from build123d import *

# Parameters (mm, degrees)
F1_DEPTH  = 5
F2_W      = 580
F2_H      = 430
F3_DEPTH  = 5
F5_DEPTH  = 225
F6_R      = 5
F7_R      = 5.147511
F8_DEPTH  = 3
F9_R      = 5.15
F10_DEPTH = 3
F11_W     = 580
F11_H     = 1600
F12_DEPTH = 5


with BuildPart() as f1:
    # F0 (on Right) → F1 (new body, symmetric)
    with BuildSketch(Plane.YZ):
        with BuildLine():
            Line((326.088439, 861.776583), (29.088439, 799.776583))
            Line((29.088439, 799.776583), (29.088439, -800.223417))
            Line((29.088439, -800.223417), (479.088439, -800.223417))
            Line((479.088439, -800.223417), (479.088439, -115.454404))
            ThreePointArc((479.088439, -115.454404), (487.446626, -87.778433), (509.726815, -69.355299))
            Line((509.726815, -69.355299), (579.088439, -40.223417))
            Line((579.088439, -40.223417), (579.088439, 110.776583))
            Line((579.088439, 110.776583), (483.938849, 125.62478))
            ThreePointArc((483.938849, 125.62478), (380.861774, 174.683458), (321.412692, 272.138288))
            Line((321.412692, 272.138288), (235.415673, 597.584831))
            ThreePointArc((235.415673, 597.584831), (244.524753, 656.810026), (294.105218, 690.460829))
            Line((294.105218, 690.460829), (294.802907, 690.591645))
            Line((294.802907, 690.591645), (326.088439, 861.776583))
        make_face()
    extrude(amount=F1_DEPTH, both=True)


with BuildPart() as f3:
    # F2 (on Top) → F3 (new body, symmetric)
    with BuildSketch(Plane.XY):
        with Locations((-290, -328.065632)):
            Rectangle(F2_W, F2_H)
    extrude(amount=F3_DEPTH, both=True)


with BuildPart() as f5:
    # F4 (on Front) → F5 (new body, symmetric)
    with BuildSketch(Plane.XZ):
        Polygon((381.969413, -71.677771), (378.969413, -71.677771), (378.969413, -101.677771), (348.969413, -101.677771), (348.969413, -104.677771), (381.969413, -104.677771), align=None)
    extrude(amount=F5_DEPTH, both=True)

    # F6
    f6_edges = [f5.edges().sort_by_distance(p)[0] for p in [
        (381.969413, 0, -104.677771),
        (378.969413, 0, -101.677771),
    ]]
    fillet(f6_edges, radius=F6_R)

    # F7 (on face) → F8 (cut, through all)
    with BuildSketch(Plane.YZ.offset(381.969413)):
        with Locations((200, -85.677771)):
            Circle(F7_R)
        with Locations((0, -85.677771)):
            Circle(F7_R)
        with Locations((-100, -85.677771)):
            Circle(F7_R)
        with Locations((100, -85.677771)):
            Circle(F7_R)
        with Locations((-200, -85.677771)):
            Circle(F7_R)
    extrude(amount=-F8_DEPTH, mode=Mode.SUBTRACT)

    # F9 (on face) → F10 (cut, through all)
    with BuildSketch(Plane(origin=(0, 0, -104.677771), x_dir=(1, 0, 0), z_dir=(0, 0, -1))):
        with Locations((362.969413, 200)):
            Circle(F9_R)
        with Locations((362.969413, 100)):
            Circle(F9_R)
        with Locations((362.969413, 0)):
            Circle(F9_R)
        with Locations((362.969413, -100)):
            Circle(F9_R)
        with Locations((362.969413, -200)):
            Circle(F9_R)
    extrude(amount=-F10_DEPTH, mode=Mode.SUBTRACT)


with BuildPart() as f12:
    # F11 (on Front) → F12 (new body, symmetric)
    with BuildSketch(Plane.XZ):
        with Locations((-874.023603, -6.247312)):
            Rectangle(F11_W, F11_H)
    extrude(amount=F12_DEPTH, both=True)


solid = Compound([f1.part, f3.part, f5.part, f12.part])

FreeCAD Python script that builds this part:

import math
import FreeCAD as App
import Part
import Sketcher

V = App.Vector


def edges_at(feature, points):
    """Names of the edges that pass closest to the given points."""
    edges = feature.Shape.Edges
    near = lambda p: min(range(len(edges)), key=lambda i: edges[i].distToShape(Part.Vertex(*p))[0])
    return sorted({f"Edge{near(p) + 1}" for p in points})

doc = App.newDocument("Part")
body = doc.addObject("PartDesign::Body", "Body")

# Sketch on YZ plane
sketch1 = body.newObject("Sketcher::SketchObject", "Sketch")
sketch1.AttachmentSupport = (doc.getObject("YZ_Plane"), [""])
sketch1.MapMode = "FlatFace"
sketch1.addGeometry(Part.LineSegment(V(326.1, 861.8, 0), V(29.1, 799.8, 0)), False)
sketch1.addGeometry(Part.LineSegment(V(29.1, 799.8, 0), V(29.1, -800.2, 0)), False)
sketch1.addGeometry(Part.LineSegment(V(29.1, -800.2, 0), V(479.1, -800.2, 0)), False)
sketch1.addGeometry(Part.LineSegment(V(479.1, -800.2, 0), V(479.1, -115.5, 0)), False)
sketch1.addGeometry(Part.ArcOfCircle(Part.Circle(V(529.1, -115.5, 0), V(0, 0, 1), 50), math.radians(113), math.radians(180)), False)
sketch1.addGeometry(Part.LineSegment(V(509.7, -69.4, 0), V(579.1, -40.2, 0)), False)
sketch1.addGeometry(Part.LineSegment(V(579.1, -40.2, 0), V(579.1, 110.8, 0)), False)
sketch1.addGeometry(Part.LineSegment(V(579.1, 110.8, 0), V(483.9, 125.6, 0)), False)
sketch1.addGeometry(Part.ArcOfCircle(Part.Circle(V(514.8, 323.2, 0), V(0, 0, 1), 200), math.radians(-165), math.radians(-99)), False)
sketch1.addGeometry(Part.LineSegment(V(321.4, 272.1, 0), V(235.4, 597.6, 0)), False)
sketch1.addGeometry(Part.ArcOfCircle(Part.Circle(V(307.9, 616.7, 0), V(0, 0, 1), 75), math.radians(101), math.radians(195)), False)
sketch1.addGeometry(Part.LineSegment(V(294.1, 690.5, 0), V(294.8, 690.6, 0)), False)
sketch1.addGeometry(Part.LineSegment(V(294.8, 690.6, 0), V(326.1, 861.8, 0)), False)
sketch1.addConstraint(Sketcher.Constraint("Coincident", 0, 2, 1, 1))
sketch1.addConstraint(Sketcher.Constraint("Coincident", 1, 2, 2, 1))
sketch1.addConstraint(Sketcher.Constraint("Coincident", 2, 2, 3, 1))
sketch1.addConstraint(Sketcher.Constraint("Tangent", 3, 2, 4, 2))
sketch1.addConstraint(Sketcher.Constraint("Tangent", 4, 1, 5, 1))
sketch1.addConstraint(Sketcher.Constraint("Coincident", 5, 2, 6, 1))
sketch1.addConstraint(Sketcher.Constraint("Coincident", 6, 2, 7, 1))
sketch1.addConstraint(Sketcher.Constraint("Tangent", 7, 2, 8, 2))
sketch1.addConstraint(Sketcher.Constraint("Tangent", 8, 1, 9, 1))
sketch1.addConstraint(Sketcher.Constraint("Tangent", 9, 2, 10, 2))
sketch1.addConstraint(Sketcher.Constraint("Tangent", 10, 1, 11, 1))
sketch1.addConstraint(Sketcher.Constraint("Coincident", 11, 2, 12, 1))
sketch1.addConstraint(Sketcher.Constraint("Coincident", 12, 2, 0, 1))
sketch1.addConstraint(Sketcher.Constraint("Vertical", 1))
sketch1.addConstraint(Sketcher.Constraint("Horizontal", 2))
sketch1.addConstraint(Sketcher.Constraint("Vertical", 3))
sketch1.addConstraint(Sketcher.Constraint("Vertical", 6))
sketch1.addConstraint(Sketcher.Constraint("Radius", 4, 50.000001))
sketch1.addConstraint(Sketcher.Constraint("Radius", 8, 199.999999))
sketch1.addConstraint(Sketcher.Constraint("Radius", 10, 75.0))
sketch1.addConstraint(Sketcher.Constraint("DistanceX", 2, 1, 2, 2, 450.0))
sketch1.addConstraint(Sketcher.Constraint("DistanceY", 1, 2, 1, 1, 1600.0))
sketch1.addConstraint(Sketcher.Constraint("DistanceY", 6, 1, 6, 2, 151.0))
sketch1.addConstraint(Sketcher.Constraint("DistanceX", 4, 3, 5, 2, 49.999999))
sketch1.addConstraint(Sketcher.Constraint("DistanceX", 0, 2, 12, 2, 297.0))
sketch1.addConstraint(Sketcher.Constraint("DistanceY", 0, 2, 12, 2, 62.0))
sketch1.addConstraint(Sketcher.Constraint("DistanceY", 9, 2, 10, 1, 92.875998))
sketch1.addConstraint(Sketcher.Constraint("DistanceY", 4, 1, -1, 1, 69.355299))
sketch1.addConstraint(Sketcher.Constraint("Distance", 7, 96.30116))
sketch1.addConstraint(Sketcher.Constraint("DistanceY", 3, 1, 3, 2, 684.769013))
sketch1.addConstraint(Sketcher.Constraint("DistanceX", -1, 1, 4, 3, 529.08844))
sketch1.addConstraint(Sketcher.Constraint("DistanceX", -1, 1, 7, 2, 483.938849))
sketch1.addConstraint(Sketcher.Constraint("DistanceY", -1, 1, 7, 2, 125.62478))
sketch1.addConstraint(Sketcher.Constraint("DistanceY", -1, 1, 9, 2, 597.584831))
sketch1.addConstraint(Sketcher.Constraint("DistanceY", 8, 3, 10, 3, 293.512238))
sketch1.addConstraint(Sketcher.Constraint("DistanceX", 10, 1, 11, 2, 0.697689))
pad1 = body.newObject("PartDesign::Pad", "Pad")
pad1.Profile = sketch1
pad1.Length = 10
pad1.Midplane = True
body2 = doc.addObject("PartDesign::Body", "Body001")

# Sketch on XY plane
sketch2 = body2.newObject("Sketcher::SketchObject", "Sketch001")
sketch2.AttachmentSupport = (doc.getObject("XY_Plane001"), [""])
sketch2.MapMode = "FlatFace"
sketch2.addGeometry(Part.LineSegment(V(-580, -113, 0), V(-580, -543, 0)), False)
sketch2.addGeometry(Part.LineSegment(V(-580, -543, 0), V(0, -543, 0)), False)
sketch2.addGeometry(Part.LineSegment(V(0, -543, 0), V(0, -113, 0)), False)
sketch2.addGeometry(Part.LineSegment(V(0, -113, 0), V(-580, -113, 0)), False)
sketch2.addConstraint(Sketcher.Constraint("Coincident", 0, 2, 1, 1))
sketch2.addConstraint(Sketcher.Constraint("Coincident", 1, 2, 2, 1))
sketch2.addConstraint(Sketcher.Constraint("Coincident", 2, 2, 3, 1))
sketch2.addConstraint(Sketcher.Constraint("Coincident", 3, 2, 0, 1))
sketch2.addConstraint(Sketcher.Constraint("Vertical", 0))
sketch2.addConstraint(Sketcher.Constraint("Horizontal", 1))
sketch2.addConstraint(Sketcher.Constraint("Vertical", 2))
sketch2.addConstraint(Sketcher.Constraint("Horizontal", 3))
sketch2.addConstraint(Sketcher.Constraint("PointOnObject", 1, 2, -2))
sketch2.addConstraint(Sketcher.Constraint("DistanceX", 1, 1, 1, 2, 580.0))
sketch2.addConstraint(Sketcher.Constraint("DistanceY", 0, 2, 0, 1, 430.0))
sketch2.addConstraint(Sketcher.Constraint("DistanceY", 0, 2, -1, 1, 543.065632))
pad2 = body2.newObject("PartDesign::Pad", "Pad001")
pad2.Profile = sketch2
pad2.Length = 10
pad2.Midplane = True
body3 = doc.addObject("PartDesign::Body", "Body002")

# Sketch on XZ plane
sketch3 = body3.newObject("Sketcher::SketchObject", "Sketch002")
sketch3.AttachmentSupport = (doc.getObject("XZ_Plane002"), [""])
sketch3.MapMode = "FlatFace"
sketch3.addGeometry(Part.LineSegment(V(382, -71.7, 0), V(379, -71.7, 0)), False)
sketch3.addGeometry(Part.LineSegment(V(379, -71.7, 0), V(379, -101.7, 0)), False)
sketch3.addGeometry(Part.LineSegment(V(379, -101.7, 0), V(349, -101.7, 0)), False)
sketch3.addGeometry(Part.LineSegment(V(349, -101.7, 0), V(349, -104.7, 0)), False)
sketch3.addGeometry(Part.LineSegment(V(349, -104.7, 0), V(382, -104.7, 0)), False)
sketch3.addGeometry(Part.LineSegment(V(382, -104.7, 0), V(382, -71.7, 0)), False)
sketch3.addConstraint(Sketcher.Constraint("Coincident", 0, 2, 1, 1))
sketch3.addConstraint(Sketcher.Constraint("Coincident", 1, 2, 2, 1))
sketch3.addConstraint(Sketcher.Constraint("Coincident", 2, 2, 3, 1))
sketch3.addConstraint(Sketcher.Constraint("Coincident", 3, 2, 4, 1))
sketch3.addConstraint(Sketcher.Constraint("Coincident", 4, 2, 5, 1))
sketch3.addConstraint(Sketcher.Constraint("Coincident", 5, 2, 0, 1))
sketch3.addConstraint(Sketcher.Constraint("Horizontal", 0))
sketch3.addConstraint(Sketcher.Constraint("Vertical", 1))
sketch3.addConstraint(Sketcher.Constraint("Horizontal", 2))
sketch3.addConstraint(Sketcher.Constraint("Vertical", 3))
sketch3.addConstraint(Sketcher.Constraint("Horizontal", 4))
sketch3.addConstraint(Sketcher.Constraint("Vertical", 5))
sketch3.addConstraint(Sketcher.Constraint("Equal", 2, 1))
sketch3.addConstraint(Sketcher.Constraint("Equal", 0, 3))
sketch3.addConstraint(Sketcher.Constraint("DistanceX", 0, 2, 0, 1, 3.0))
sketch3.addConstraint(Sketcher.Constraint("DistanceX", 2, 2, 2, 1, 30.0))
sketch3.addConstraint(Sketcher.Constraint("DistanceY", 0, 2, -1, 1, 71.677771))
sketch3.addConstraint(Sketcher.Constraint("DistanceX", -1, 1, 0, 2, 378.969413))
pad3 = body3.newObject("PartDesign::Pad", "Pad002")
pad3.Profile = sketch3
pad3.Length = 450
pad3.Midplane = True
doc.recompute()

fillet = body3.newObject("PartDesign::Fillet", "Fillet")
fillet.Base = (pad3, edges_at(pad3, [(381.969, 0, -104.678), (378.969, 0, -101.678)]))
fillet.Radius = 5

# Sketch on YZ plane
sketch4 = body3.newObject("Sketcher::SketchObject", "Sketch003")
sketch4.AttachmentSupport = (doc.getObject("YZ_Plane002"), [""])
sketch4.MapMode = "FlatFace"
sketch4.AttachmentOffset = App.Placement(V(0, 0, 381.969413), App.Rotation())
sketch4.addGeometry(Part.Circle(V(200, -86, 0), V(0, 0, 1), 5), False)
sketch4.addGeometry(Part.Circle(V(0, -86, 0), V(0, 0, 1), 5), False)
sketch4.addGeometry(Part.Circle(V(-100, -86, 0), V(0, 0, 1), 5), False)
sketch4.addGeometry(Part.Circle(V(100, -86, 0), V(0, 0, 1), 5), False)
sketch4.addGeometry(Part.Circle(V(-200, -86, 0), V(0, 0, 1), 5), False)
sketch4.addConstraint(Sketcher.Constraint("Equal", 0, 1))
sketch4.addConstraint(Sketcher.Constraint("Equal", 1, 2))
sketch4.addConstraint(Sketcher.Constraint("Equal", 2, 3))
sketch4.addConstraint(Sketcher.Constraint("Equal", 3, 4))
sketch4.addConstraint(Sketcher.Constraint("Symmetric", 2, 3, 3, 3, -2))
sketch4.addConstraint(Sketcher.Constraint("Symmetric", 0, 3, 4, 3, -2))
sketch4.addConstraint(Sketcher.Constraint("PointOnObject", 1, 3, -2))
sketch4.addConstraint(Sketcher.Constraint("Horizontal", 0, 3, 1, 3))
sketch4.addConstraint(Sketcher.Constraint("Horizontal", 1, 3, 2, 3))
sketch4.addConstraint(Sketcher.Constraint("DistanceX", -1, 1, 0, 3, 200.0))
sketch4.addConstraint(Sketcher.Constraint("DistanceX", 2, 3, -1, 1, 100.0))
sketch4.addConstraint(Sketcher.Constraint("Diameter", 0, 10.295022))
sketch4.addConstraint(Sketcher.Constraint("DistanceY", 0, 3, -1, 1, 85.677771))
pocket1 = body3.newObject("PartDesign::Pocket", "Pocket")
pocket1.Profile = sketch4
pocket1.Type = "ThroughAll"

# Sketch on XY plane
sketch5 = body3.newObject("Sketcher::SketchObject", "Sketch004")
sketch5.AttachmentSupport = (doc.getObject("XY_Plane002"), [""])
sketch5.MapMode = "FlatFace"
sketch5.AttachmentOffset = App.Placement(V(0, 0, -104.677771), App.Rotation())
sketch5.addGeometry(Part.Circle(V(363, -200, 0), V(0, 0, 1), 5), False)
sketch5.addGeometry(Part.Circle(V(363, -100, 0), V(0, 0, 1), 5), False)
sketch5.addGeometry(Part.Circle(V(363, 0, 0), V(0, 0, 1), 5), False)
sketch5.addGeometry(Part.Circle(V(363, 100, 0), V(0, 0, 1), 5), False)
sketch5.addGeometry(Part.Circle(V(363, 200, 0), V(0, 0, 1), 5), False)
sketch5.addConstraint(Sketcher.Constraint("Equal", 0, 1))
sketch5.addConstraint(Sketcher.Constraint("Equal", 1, 2))
sketch5.addConstraint(Sketcher.Constraint("Equal", 2, 3))
sketch5.addConstraint(Sketcher.Constraint("Equal", 3, 4))
sketch5.addConstraint(Sketcher.Constraint("Symmetric", 1, 3, 3, 3, -1))
sketch5.addConstraint(Sketcher.Constraint("Symmetric", 0, 3, 4, 3, -1))
sketch5.addConstraint(Sketcher.Constraint("PointOnObject", 2, 3, -1))
sketch5.addConstraint(Sketcher.Constraint("Vertical", 0, 3, 1, 3))
sketch5.addConstraint(Sketcher.Constraint("Vertical", 1, 3, 2, 3))
sketch5.addConstraint(Sketcher.Constraint("Diameter", 0, 10.3))
sketch5.addConstraint(Sketcher.Constraint("DistanceY", 0, 3, -1, 1, 200.0))
sketch5.addConstraint(Sketcher.Constraint("DistanceY", 1, 3, -1, 1, 100.0))
sketch5.addConstraint(Sketcher.Constraint("DistanceX", -1, 1, 0, 3, 362.969413))
pocket2 = body3.newObject("PartDesign::Pocket", "Pocket001")
pocket2.Profile = sketch5
pocket2.Type = "ThroughAll"
pocket2.Reversed = True
body4 = doc.addObject("PartDesign::Body", "Body003")

# Sketch on XZ plane
sketch6 = body4.newObject("Sketcher::SketchObject", "Sketch005")
sketch6.AttachmentSupport = (doc.getObject("XZ_Plane003"), [""])
sketch6.MapMode = "FlatFace"
sketch6.addGeometry(Part.LineSegment(V(-1164, 794, 0), V(-1164, -806, 0)), False)
sketch6.addGeometry(Part.LineSegment(V(-1164, -806, 0), V(-584, -806, 0)), False)
sketch6.addGeometry(Part.LineSegment(V(-584, -806, 0), V(-584, 794, 0)), False)
sketch6.addGeometry(Part.LineSegment(V(-584, 794, 0), V(-1164, 794, 0)), False)
sketch6.addConstraint(Sketcher.Constraint("Coincident", 0, 2, 1, 1))
sketch6.addConstraint(Sketcher.Constraint("Coincident", 1, 2, 2, 1))
sketch6.addConstraint(Sketcher.Constraint("Coincident", 2, 2, 3, 1))
sketch6.addConstraint(Sketcher.Constraint("Coincident", 3, 2, 0, 1))
sketch6.addConstraint(Sketcher.Constraint("Vertical", 0))
sketch6.addConstraint(Sketcher.Constraint("Horizontal", 1))
sketch6.addConstraint(Sketcher.Constraint("Vertical", 2))
sketch6.addConstraint(Sketcher.Constraint("Horizontal", 3))
sketch6.addConstraint(Sketcher.Constraint("DistanceX", 1, 1, 1, 2, 580.0))
sketch6.addConstraint(Sketcher.Constraint("DistanceY", 0, 2, 0, 1, 1600.0))
sketch6.addConstraint(Sketcher.Constraint("DistanceY", 0, 2, -1, 1, 806.247312))
sketch6.addConstraint(Sketcher.Constraint("DistanceX", 0, 2, -1, 1, 1164.023603))
pad4 = body4.newObject("PartDesign::Pad", "Pad003")
pad4.Profile = sketch6
pad4.Length = 10
pad4.Midplane = True

doc.recompute()
